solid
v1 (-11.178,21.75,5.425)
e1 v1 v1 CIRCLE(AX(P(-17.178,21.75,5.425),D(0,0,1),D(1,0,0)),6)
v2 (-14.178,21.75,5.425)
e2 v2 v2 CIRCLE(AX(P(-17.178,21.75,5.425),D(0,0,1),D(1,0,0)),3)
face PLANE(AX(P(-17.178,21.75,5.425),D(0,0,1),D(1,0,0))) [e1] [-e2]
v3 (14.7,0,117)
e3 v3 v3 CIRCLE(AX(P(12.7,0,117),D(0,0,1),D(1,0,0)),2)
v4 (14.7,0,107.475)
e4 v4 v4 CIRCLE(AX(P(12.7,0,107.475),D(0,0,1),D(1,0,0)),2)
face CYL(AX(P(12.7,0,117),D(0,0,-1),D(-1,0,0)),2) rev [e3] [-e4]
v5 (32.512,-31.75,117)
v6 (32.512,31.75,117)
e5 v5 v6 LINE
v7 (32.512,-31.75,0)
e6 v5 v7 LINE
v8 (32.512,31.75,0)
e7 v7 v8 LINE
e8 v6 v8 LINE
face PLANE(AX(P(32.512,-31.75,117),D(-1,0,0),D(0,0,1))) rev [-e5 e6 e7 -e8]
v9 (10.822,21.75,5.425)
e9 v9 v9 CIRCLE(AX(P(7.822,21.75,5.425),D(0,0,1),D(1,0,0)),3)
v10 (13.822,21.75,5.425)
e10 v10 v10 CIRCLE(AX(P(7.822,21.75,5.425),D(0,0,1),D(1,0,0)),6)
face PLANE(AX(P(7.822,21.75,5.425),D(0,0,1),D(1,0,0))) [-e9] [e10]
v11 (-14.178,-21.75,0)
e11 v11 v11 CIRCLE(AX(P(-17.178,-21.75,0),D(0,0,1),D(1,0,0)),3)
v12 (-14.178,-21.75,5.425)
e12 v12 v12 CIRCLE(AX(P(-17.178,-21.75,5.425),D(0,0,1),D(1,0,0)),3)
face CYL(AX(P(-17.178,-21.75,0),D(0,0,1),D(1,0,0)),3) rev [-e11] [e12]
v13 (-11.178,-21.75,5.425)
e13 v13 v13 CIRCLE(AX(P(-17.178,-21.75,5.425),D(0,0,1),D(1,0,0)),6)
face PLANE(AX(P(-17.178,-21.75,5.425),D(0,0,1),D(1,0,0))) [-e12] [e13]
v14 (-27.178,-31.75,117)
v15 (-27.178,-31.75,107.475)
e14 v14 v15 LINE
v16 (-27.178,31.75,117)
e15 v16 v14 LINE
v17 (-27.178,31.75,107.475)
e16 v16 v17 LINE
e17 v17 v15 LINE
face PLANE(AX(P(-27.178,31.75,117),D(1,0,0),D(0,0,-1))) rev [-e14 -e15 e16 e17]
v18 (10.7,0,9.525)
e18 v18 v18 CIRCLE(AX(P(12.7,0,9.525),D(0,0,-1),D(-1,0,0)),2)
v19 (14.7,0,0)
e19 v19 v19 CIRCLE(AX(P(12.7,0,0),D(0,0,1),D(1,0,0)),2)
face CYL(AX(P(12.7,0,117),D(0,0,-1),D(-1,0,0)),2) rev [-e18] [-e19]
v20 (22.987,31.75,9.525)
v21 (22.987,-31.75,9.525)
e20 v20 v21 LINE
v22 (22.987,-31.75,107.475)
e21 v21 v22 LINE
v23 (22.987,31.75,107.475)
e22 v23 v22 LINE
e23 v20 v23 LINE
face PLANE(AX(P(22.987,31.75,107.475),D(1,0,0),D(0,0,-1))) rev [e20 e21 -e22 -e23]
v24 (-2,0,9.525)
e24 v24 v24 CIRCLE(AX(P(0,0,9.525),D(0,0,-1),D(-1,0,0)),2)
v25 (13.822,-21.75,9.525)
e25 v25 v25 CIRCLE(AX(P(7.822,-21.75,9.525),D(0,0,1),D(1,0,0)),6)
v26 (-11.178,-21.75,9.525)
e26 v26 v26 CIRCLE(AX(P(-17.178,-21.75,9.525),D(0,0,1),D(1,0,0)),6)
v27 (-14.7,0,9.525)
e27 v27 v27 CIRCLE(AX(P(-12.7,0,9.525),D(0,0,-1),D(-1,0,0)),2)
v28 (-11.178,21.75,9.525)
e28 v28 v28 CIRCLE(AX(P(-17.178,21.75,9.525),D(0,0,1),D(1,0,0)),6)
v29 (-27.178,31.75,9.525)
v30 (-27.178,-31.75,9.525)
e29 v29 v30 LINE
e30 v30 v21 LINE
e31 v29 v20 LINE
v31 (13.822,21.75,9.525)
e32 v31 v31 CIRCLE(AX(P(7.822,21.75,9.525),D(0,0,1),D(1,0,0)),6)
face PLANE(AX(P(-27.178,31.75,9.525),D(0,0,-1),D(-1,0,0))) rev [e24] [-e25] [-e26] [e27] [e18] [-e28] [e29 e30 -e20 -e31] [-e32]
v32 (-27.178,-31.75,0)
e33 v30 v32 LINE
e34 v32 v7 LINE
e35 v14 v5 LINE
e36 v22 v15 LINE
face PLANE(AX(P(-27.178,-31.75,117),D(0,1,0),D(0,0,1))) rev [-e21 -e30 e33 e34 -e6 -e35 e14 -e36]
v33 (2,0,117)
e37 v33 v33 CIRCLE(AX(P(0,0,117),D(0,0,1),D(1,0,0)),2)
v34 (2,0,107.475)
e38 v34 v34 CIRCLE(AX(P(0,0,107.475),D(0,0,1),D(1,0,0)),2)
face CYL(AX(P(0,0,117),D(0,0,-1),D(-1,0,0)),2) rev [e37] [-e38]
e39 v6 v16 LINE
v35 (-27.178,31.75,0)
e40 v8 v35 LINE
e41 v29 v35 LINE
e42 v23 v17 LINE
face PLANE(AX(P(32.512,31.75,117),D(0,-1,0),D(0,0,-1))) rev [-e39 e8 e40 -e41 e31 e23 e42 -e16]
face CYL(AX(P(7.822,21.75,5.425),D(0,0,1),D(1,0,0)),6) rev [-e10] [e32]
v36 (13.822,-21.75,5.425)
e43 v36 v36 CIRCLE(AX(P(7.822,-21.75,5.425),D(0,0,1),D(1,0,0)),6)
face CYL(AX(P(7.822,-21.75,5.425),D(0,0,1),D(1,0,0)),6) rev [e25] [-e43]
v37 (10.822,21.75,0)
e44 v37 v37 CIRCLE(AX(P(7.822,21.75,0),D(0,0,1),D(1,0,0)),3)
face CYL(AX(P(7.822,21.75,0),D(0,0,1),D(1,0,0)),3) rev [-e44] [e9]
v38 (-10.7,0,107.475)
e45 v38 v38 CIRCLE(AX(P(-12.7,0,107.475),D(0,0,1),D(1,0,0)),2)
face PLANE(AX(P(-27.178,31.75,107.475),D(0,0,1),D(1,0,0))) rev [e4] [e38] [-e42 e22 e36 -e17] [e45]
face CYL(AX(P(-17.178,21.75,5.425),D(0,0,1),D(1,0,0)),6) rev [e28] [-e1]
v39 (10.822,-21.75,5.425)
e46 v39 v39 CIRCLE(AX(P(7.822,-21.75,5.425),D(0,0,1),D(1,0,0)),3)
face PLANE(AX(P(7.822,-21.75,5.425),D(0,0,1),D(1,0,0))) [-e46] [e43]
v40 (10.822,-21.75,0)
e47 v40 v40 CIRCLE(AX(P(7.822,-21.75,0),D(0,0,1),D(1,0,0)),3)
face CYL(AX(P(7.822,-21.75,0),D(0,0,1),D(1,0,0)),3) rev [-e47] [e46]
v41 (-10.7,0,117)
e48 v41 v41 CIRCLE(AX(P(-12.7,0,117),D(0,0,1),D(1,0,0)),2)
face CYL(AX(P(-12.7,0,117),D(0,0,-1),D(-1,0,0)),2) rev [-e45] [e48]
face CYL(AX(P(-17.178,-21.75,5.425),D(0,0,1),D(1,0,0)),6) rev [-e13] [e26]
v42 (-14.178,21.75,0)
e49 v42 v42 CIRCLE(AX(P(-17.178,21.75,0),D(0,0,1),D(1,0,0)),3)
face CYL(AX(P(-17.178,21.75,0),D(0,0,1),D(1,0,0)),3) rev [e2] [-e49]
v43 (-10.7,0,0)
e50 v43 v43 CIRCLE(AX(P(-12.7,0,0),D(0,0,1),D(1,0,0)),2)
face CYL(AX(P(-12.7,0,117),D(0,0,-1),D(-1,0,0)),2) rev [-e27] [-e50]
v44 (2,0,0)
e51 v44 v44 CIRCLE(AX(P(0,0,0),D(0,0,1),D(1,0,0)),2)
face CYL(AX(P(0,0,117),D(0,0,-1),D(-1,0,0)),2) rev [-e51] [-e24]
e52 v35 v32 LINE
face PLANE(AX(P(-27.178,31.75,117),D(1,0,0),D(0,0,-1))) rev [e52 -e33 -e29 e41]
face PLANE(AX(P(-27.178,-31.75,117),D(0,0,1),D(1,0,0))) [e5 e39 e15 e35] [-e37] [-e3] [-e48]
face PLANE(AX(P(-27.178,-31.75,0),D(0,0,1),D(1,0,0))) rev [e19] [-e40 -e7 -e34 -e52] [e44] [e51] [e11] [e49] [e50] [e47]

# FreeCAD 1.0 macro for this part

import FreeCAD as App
import Part
import Sketcher

doc = App.newDocument("Part")
body = doc.addObject("PartDesign::Body", "Body")

sketch1 = body.newObject("Sketcher::SketchObject", "Sketch")
sketch1.AttachmentSupport = (doc.getObject("XY_Plane"), [""])
sketch1.MapMode = "FlatFace"
sketch1.addGeometry(Part.LineSegment(App.Vector(-27.2, 31.8, 0), App.Vector(-27.2, -31.8, 0)), False)
sketch1.addGeometry(Part.LineSegment(App.Vector(-27.2, -31.8, 0), App.Vector(32.5, -31.8, 0)), False)
sketch1.addGeometry(Part.LineSegment(App.Vector(32.5, -31.8, 0), App.Vector(32.5, 31.8, 0)), False)
sketch1.addGeometry(Part.LineSegment(App.Vector(32.5, 31.8, 0), App.Vector(-27.2, 31.8, 0)), False)
sketch1.addGeometry(Part.Circle(App.Vector(-12.7, 0, 0), App.Vector(0, 0, 1), 2), False)
sketch1.addGeometry(Part.Circle(App.Vector(0, 0, 0), App.Vector(0, 0, 1), 2), False)
sketch1.addGeometry(Part.Circle(App.Vector(12.7, 0, 0), App.Vector(0, 0, 1), 2), False)
sketch1.addConstraint(Sketcher.Constraint("Coincident", 0, 2, 1, 1))
sketch1.addConstraint(Sketcher.Constraint("Coincident", 1, 2, 2, 1))
sketch1.addConstraint(Sketcher.Constraint("Coincident", 2, 2, 3, 1))
sketch1.addConstraint(Sketcher.Constraint("Coincident", 3, 2, 0, 1))
sketch1.addConstraint(Sketcher.Constraint("Vertical", 0))
sketch1.addConstraint(Sketcher.Constraint("Horizontal", 1))
sketch1.addConstraint(Sketcher.Constraint("Vertical", 2))
sketch1.addConstraint(Sketcher.Constraint("Horizontal", 3))
sketch1.addConstraint(Sketcher.Constraint("Coincident", 5, 3, -1, 1))
sketch1.addConstraint(Sketcher.Constraint("Equal", 4, 5))
sketch1.addConstraint(Sketcher.Constraint("Equal", 5, 6))
sketch1.addConstraint(Sketcher.Constraint("Symmetric", 4, 3, 6, 3, -1, 1))
sketch1.addConstraint(Sketcher.Constraint("PointOnObject", 4, 3, -1))
sketch1.addConstraint(Sketcher.Constraint("Diameter", 4, 4.0))
sketch1.addConstraint(Sketcher.Constraint("DistanceY", 0, 2, 0, 1, 63.5))
sketch1.addConstraint(Sketcher.Constraint("DistanceX", 1, 1, 1, 2, 59.69))
sketch1.addConstraint(Sketcher.Constraint("DistanceX", 4, 3, -1, 1, 12.7))
sketch1.addConstraint(Sketcher.Constraint("DistanceY", 0, 2, -1, 1, 31.75))
sketch1.addConstraint(Sketcher.Constraint("DistanceX", 0, 2, -1, 1, 27.178))
pad1 = body.newObject("PartDesign::Pad", "Pad")
pad1.Profile = sketch1
pad1.Length = 117

sketch2 = body.newObject("Sketcher::SketchObject", "Sketch001")
sketch2.AttachmentSupport = (doc.getObject("XZ_Plane"), [""])
sketch2.MapMode = "FlatFace"
sketch2.AttachmentOffset = App.Placement(App.Vector(0, 0, 31.75), App.Rotation())
sketch2.addGeometry(Part.LineSegment(App.Vector(-27, 107, 0), App.Vector(-27, 10, 0)), False)
sketch2.addGeometry(Part.LineSegment(App.Vector(-27, 10, 0), App.Vector(23, 10, 0)), False)
sketch2.addGeometry(Part.LineSegment(App.Vector(23, 10, 0), App.Vector(23, 107, 0)), False)
sketch2.addGeometry(Part.LineSegment(App.Vector(23, 107, 0), App.Vector(-27, 107, 0)), False)
sketch2.addConstraint(Sketcher.Constraint("Coincident", 0, 2, 1, 1))
sketch2.addConstraint(Sketcher.Constraint("Coincident", 1, 2, 2, 1))
sketch2.addConstraint(Sketcher.Constraint("Coincident", 2, 2, 3, 1))
sketch2.addConstraint(Sketcher.Constraint("Coincident", 3, 2, 0, 1))
sketch2.addConstraint(Sketcher.Constraint("Vertical", 0))
sketch2.addConstraint(Sketcher.Constraint("Horizontal", 1))
sketch2.addConstraint(Sketcher.Constraint("Vertical", 2))
sketch2.addConstraint(Sketcher.Constraint("Horizontal", 3))
sketch2.addConstraint(Sketcher.Constraint("DistanceY", 0, 2, 0, 1, 97.95))
sketch2.addConstraint(Sketcher.Constraint("DistanceX", 1, 1, 1, 2, 50.165))
sketch2.addConstraint(Sketcher.Constraint("DistanceX", 0, 2, -1, 1, 27.178))
sketch2.addConstraint(Sketcher.Constraint("DistanceY", -1, 1, 0, 2, 9.525))
pocket1 = body.newObject("PartDesign::Pocket", "Pocket")
pocket1.Profile = sketch2
pocket1.Type = "ThroughAll"

sketch3 = body.newObject("Sketcher::SketchObject", "Sketch002")
sketch3.AttachmentSupport = (doc.getObject("XY_Plane"), [""])
sketch3.MapMode = "FlatFace"
sketch3.AttachmentOffset = App.Placement(App.Vector(0, 0, 9.525), App.Rotation())
sketch3.addGeometry(Part.Circle(App.Vector(-17.2, -21.8, 0), App.Vector(0, 0, 1), 6), False)
sketch3.addGeometry(Part.Circle(App.Vector(-17.2, -21.8, 0), App.Vector(0, 0, 1), 3), False)
sketch3.addGeometry(Part.Circle(App.Vector(7.8, -21.8, 0), App.Vector(0, 0, 1), 6), False)
sketch3.addGeometry(Part.Circle(App.Vector(7.8, -21.8, 0), App.Vector(0, 0, 1), 3), False)
sketch3.addGeometry(Part.Circle(App.Vector(-17.2, 21.8, 0), App.Vector(0, 0, 1), 6), False)
sketch3.addGeometry(Part.Circle(App.Vector(-17.2, 21.8, 0), App.Vector(0, 0, 1), 3), False)
sketch3.addGeometry(Part.Circle(App.Vector(7.8, 21.8, 0), App.Vector(0, 0, 1), 6), False)
sketch3.addGeometry(Part.Circle(App.Vector(7.8, 21.8, 0), App.Vector(0, 0, 1), 3), False)
sketch3.addConstraint(Sketcher.Constraint("Coincident", 1, 3, 0, 3))
sketch3.addConstraint(Sketcher.Constraint("Coincident", 3, 3, 2, 3))
sketch3.addConstraint(Sketcher.Constraint("Coincident", 5, 3, 4, 3))
sketch3.addConstraint(Sketcher.Constraint("Coincident", 7, 3, 6, 3))
sketch3.addConstraint(Sketcher.Constraint("Equal", 0, 2))
sketch3.addConstraint(Sketcher.Constraint("Equal", 1, 3))
sketch3.addConstraint(Sketcher.Constraint("Equal", 2, 4))
sketch3.addConstraint(Sketcher.Constraint("Equal", 3, 5))
sketch3.addConstraint(Sketcher.Constraint("Equal", 4, 6))
sketch3.addConstraint(Sketcher.Constraint("Equal", 5, 7))
sketch3.addConstraint(Sketcher.Constraint("Symmetric", 0, 3, 4, 3, -1))
sketch3.addConstraint(Sketcher.Constraint("Symmetric", 2, 3, 6, 3, -1))
sketch3.addConstraint(Sketcher.Constraint("Horizontal", 1, 3, 2, 3))
sketch3.addConstraint(Sketcher.Constraint("Diameter", 0, 12.0))
sketch3.addConstraint(Sketcher.Constraint("Diameter", 1, 6.0))
sketch3.addConstraint(Sketcher.Constraint("DistanceX", 0, 3, 2, 3, 25.0))
sketch3.addConstraint(Sketcher.Constraint("DistanceY", 0, 3, 4, 3, 43.5))
sketch3.addConstraint(Sketcher.Constraint("DistanceX", 0, 3, -1, 1, 17.178))
pocket2 = body.newObject("PartDesign::Pocket", "Pocket001")
pocket2.Profile = sketch3
pocket2.Length = 4.1

sketch4 = body.newObject("Sketcher::SketchObject", "Sketch003")
sketch4.AttachmentSupport = (doc.getObject("XY_Plane"), [""])
sketch4.MapMode = "FlatFace"
sketch4.AttachmentOffset = App.Placement(App.Vector(0, 0, 9.525), App.Rotation())
sketch4.addGeometry(Part.Circle(App.Vector(-17.2, 21.8, 0), App.Vector(0, 0, 1), 3), False)
sketch4.addGeometry(Part.Circle(App.Vector(7.8, 21.8, 0), App.Vector(0, 0, 1), 3), False)
sketch4.addGeometry(Part.Circle(App.Vector(7.8, -21.8, 0), App.Vector(0, 0, 1), 3), False)
sketch4.addGeometry(Part.Circle(App.Vector(-17.2, -21.8, 0), App.Vector(0, 0, 1), 3), False)
sketch4.addConstraint(Sketcher.Constraint("Equal", 0, 1))
sketch4.addConstraint(Sketcher.Constraint("Equal", 1, 2))
sketch4.addConstraint(Sketcher.Constraint("Equal", 2, 3))
sketch4.addConstraint(Sketcher.Constraint("Symmetric", 1, 3, 2, 3, -1))
sketch4.addConstraint(Sketcher.Constraint("Symmetric", 0, 3, 3, 3, -1))
sketch4.addConstraint(Sketcher.Constraint("Horizontal", 0, 3, 1, 3))
sketch4.addConstraint(Sketcher.Constraint("Diameter", 0, 6.0))
sketch4.addConstraint(Sketcher.Constraint("DistanceX", 0, 3, 1, 3, 25.0))
sketch4.addConstraint(Sketcher.Constraint("DistanceY", 2, 3, 1, 3, 43.5))
sketch4.addConstraint(Sketcher.Constraint("DistanceX", 0, 3, -1, 1, 17.178))
pocket3 = body.newObject("PartDesign::Pocket", "Pocket002")
pocket3.Profile = sketch4
pocket3.Type = "ThroughAll"

doc.recompute()
